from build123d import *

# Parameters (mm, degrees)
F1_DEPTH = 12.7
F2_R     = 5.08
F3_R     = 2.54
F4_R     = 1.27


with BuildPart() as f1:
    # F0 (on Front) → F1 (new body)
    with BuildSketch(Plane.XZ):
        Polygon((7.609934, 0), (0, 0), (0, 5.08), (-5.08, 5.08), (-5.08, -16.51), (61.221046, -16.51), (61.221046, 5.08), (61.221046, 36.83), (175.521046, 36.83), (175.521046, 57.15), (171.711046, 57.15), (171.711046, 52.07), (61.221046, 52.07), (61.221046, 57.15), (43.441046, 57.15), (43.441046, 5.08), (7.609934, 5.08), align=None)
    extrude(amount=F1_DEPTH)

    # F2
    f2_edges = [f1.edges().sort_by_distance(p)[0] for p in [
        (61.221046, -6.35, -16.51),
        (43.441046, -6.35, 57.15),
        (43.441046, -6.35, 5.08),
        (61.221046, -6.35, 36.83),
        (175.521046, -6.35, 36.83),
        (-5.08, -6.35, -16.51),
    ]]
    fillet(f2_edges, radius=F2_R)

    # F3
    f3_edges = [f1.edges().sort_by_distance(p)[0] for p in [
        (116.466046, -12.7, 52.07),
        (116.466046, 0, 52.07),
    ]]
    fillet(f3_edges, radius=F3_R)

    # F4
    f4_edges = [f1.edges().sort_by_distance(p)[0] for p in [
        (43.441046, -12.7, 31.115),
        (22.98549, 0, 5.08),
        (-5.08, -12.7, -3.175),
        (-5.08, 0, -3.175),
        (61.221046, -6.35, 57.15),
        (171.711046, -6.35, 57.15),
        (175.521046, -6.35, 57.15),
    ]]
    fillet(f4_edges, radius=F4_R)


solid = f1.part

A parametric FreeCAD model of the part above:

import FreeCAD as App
import Part
import Sketcher
from FreeCAD import Vector
Q = App.Units.Quantity


def edges_at(feature, points):
    """Names of the edges that pass closest to the given points."""
    edges = feature.Shape.Edges
    near = lambda p: min(range(len(edges)), key=lambda i: edges[i].distToShape(Part.Vertex(*p))[0])
    return sorted({f"Edge{near(p) + 1}" for p in points})

doc = App.newDocument("Part")
body = doc.addObject("PartDesign::Body", "Body")

# Sketch on XZ plane
sketch1 = doc.addObject("Sketcher::SketchObject", "Sketch")
body.addObject(sketch1)
sketch1.AttachmentSupport = (doc.XZ_Plane, [""])
sketch1.MapMode = "FlatFace"
sketch1.addGeometry([
    Part.LineSegment(Vector(7.6, 0, 0), Vector(0, 0, 0)),  # 0
    Part.LineSegment(Vector(0, 0, 0), Vector(0, 5.1, 0)),  # 1
    Part.LineSegment(Vector(0, 5.1, 0), Vector(-5.1, 5.1, 0)),  # 2
    Part.LineSegment(Vector(-5.1, 5.1, 0), Vector(-5.1, -16.5, 0)),  # 3
    Part.LineSegment(Vector(-5.1, -16.5, 0), Vector(61.2, -16.5, 0)),  # 4
    Part.LineSegment(Vector(61.2, -16.5, 0), Vector(61.2, 36.8, 0)),  # 5
    Part.LineSegment(Vector(61.2, 36.8, 0), Vector(175.5, 36.8, 0)),  # 6
    Part.LineSegment(Vector(175.5, 36.8, 0), Vector(175.5, 57.1, 0)),  # 7
    Part.LineSegment(Vector(175.5, 57.1, 0), Vector(171.7, 57.1, 0)),  # 8
    Part.LineSegment(Vector(171.7, 57.1, 0), Vector(171.7, 52.1, 0)),  # 9
    Part.LineSegment(Vector(171.7, 52.1, 0), Vector(61.2, 52.1, 0)),  # 10
    Part.LineSegment(Vector(61.2, 52.1, 0), Vector(61.2, 57.1, 0)),  # 11
    Part.LineSegment(Vector(61.2, 57.1, 0), Vector(43.4, 57.1, 0)),  # 12
    Part.LineSegment(Vector(43.4, 57.1, 0), Vector(43.4, 5.1, 0)),  # 13
    Part.LineSegment(Vector(43.4, 5.1, 0), Vector(7.6, 5.1, 0)),  # 14
    Part.LineSegment(Vector(7.6, 5.1, 0), Vector(7.6, 0, 0)),  # 15
], False)
sketch1.addConstraint([
    Sketcher.Constraint("Coincident", 0, 2, 1, 1),
    Sketcher.Constraint("Coincident", 1, 2, 2, 1),
    Sketcher.Constraint("Coincident", 2, 2, 3, 1),
    Sketcher.Constraint("Coincident", 3, 2, 4, 1),
    Sketcher.Constraint("Coincident", 4, 2, 5, 1),
    Sketcher.Constraint("Coincident", 5, 2, 6, 1),
    Sketcher.Constraint("Coincident", 6, 2, 7, 1),
    Sketcher.Constraint("Coincident", 7, 2, 8, 1),
    Sketcher.Constraint("Coincident", 8, 2, 9, 1),
    Sketcher.Constraint("Coincident", 9, 2, 10, 1),
    Sketcher.Constraint("Coincident", 10, 2, 11, 1),
    Sketcher.Constraint("Coincident", 11, 2, 12, 1),
    Sketcher.Constraint("Coincident", 12, 2, 13, 1),
    Sketcher.Constraint("Coincident", 13, 2, 14, 1),
    Sketcher.Constraint("Coincident", 14, 2, 15, 1),
    Sketcher.Constraint("Coincident", 15, 2, 0, 1),
    Sketcher.Constraint("Horizontal", 0),
    Sketcher.Constraint("Vertical", 1),
    Sketcher.Constraint("Horizontal", 2),
    Sketcher.Constraint("Vertical", 3),
    Sketcher.Constraint("Horizontal", 4),
    Sketcher.Constraint("Vertical", 5),
    Sketcher.Constraint("Horizontal", 6),
    Sketcher.Constraint("Vertical", 7),
    Sketcher.Constraint("Horizontal", 8),
    Sketcher.Constraint("Vertical", 9),
    Sketcher.Constraint("Horizontal", 10),
    Sketcher.Constraint("Vertical", 11),
    Sketcher.Constraint("Horizontal", 12),
    Sketcher.Constraint("Vertical", 13),
    Sketcher.Constraint("Horizontal", 14),
    Sketcher.Constraint("Vertical", 15),
    Sketcher.Constraint("Coincident", 0, 2, -1, 1),
    Sketcher.Constraint("Horizontal", 8, 2, 11, 2),
    Sketcher.Constraint("Horizontal", 2, 2, 13, 2),
    Sketcher.Constraint("Vertical", 5, 2, 10, 2),
    Sketcher.Constraint("Equal", 2, 1),
    Sketcher.Constraint("Equal", 1, 9),
    Sketcher.Constraint("DistanceX", 2, 2, 2, 1, Q("0.2 in")),
    Sketcher.Constraint("DistanceX", 6, 1, 6, 2, Q("4.5 in")),
    Sketcher.Constraint("DistanceX", 12, 2, 12, 1, Q("0.7 in")),
    Sketcher.Constraint("DistanceY", 5, 1, 5, 2, Q("2.1 in")),
    Sketcher.Constraint("DistanceY", 7, 1, 7, 2, Q("0.8 in")),
    Sketcher.Constraint("DistanceX", 8, 2, 8, 1, Q("0.15 in")),
    Sketcher.Constraint("DistanceY", 3, 2, 3, 1, Q("0.85 in")),
    Sketcher.Constraint("DistanceX", 14, 2, 14, 1, 35.831112),
    Sketcher.Constraint("DistanceX", 0, 2, 0, 1, 7.609934),
])
pad1 = doc.addObject("PartDesign::Pad", "Pad")
body.addObject(pad1)
pad1.Profile = sketch1
pad1.Length = Q("0.5 in")
doc.recompute()

fillet = doc.addObject("PartDesign::Fillet", "Fillet")
body.addObject(fillet)
fillet.Base = (pad1, edges_at(pad1, [
    (61.221, -6.35, -16.51),
    (43.441, -6.35, 57.15),
    (43.441, -6.35, 5.08),
    (61.221, -6.35, 36.83),
    (175.521, -6.35, 36.83),
    (-5.08, -6.35, -16.51),
]))
fillet.Radius = Q("0.2 in")
doc.recompute()

fillet2 = doc.addObject("PartDesign::Fillet", "Fillet001")
body.addObject(fillet2)
fillet2.Base = (fillet, edges_at(fillet, [(116.466, -12.7, 52.07), (116.466, 0, 52.07)]))
fillet2.Radius = Q("0.1 in")
doc.recompute()

fillet3 = doc.addObject("PartDesign::Fillet", "Fillet002")
body.addObject(fillet3)
fillet3.Base = (fillet2, edges_at(fillet2, [
    (43.441, -12.7, 31.115),
    (22.985, 0, 5.08),
    (-5.08, -12.7, -3.175),
    (-5.08, 0, -3.175),
    (61.221, -6.35, 57.15),
    (171.711, -6.35, 57.15),
    (175.521, -6.35, 57.15),
]))
fillet3.Radius = Q("0.05 in")

doc.recompute()
